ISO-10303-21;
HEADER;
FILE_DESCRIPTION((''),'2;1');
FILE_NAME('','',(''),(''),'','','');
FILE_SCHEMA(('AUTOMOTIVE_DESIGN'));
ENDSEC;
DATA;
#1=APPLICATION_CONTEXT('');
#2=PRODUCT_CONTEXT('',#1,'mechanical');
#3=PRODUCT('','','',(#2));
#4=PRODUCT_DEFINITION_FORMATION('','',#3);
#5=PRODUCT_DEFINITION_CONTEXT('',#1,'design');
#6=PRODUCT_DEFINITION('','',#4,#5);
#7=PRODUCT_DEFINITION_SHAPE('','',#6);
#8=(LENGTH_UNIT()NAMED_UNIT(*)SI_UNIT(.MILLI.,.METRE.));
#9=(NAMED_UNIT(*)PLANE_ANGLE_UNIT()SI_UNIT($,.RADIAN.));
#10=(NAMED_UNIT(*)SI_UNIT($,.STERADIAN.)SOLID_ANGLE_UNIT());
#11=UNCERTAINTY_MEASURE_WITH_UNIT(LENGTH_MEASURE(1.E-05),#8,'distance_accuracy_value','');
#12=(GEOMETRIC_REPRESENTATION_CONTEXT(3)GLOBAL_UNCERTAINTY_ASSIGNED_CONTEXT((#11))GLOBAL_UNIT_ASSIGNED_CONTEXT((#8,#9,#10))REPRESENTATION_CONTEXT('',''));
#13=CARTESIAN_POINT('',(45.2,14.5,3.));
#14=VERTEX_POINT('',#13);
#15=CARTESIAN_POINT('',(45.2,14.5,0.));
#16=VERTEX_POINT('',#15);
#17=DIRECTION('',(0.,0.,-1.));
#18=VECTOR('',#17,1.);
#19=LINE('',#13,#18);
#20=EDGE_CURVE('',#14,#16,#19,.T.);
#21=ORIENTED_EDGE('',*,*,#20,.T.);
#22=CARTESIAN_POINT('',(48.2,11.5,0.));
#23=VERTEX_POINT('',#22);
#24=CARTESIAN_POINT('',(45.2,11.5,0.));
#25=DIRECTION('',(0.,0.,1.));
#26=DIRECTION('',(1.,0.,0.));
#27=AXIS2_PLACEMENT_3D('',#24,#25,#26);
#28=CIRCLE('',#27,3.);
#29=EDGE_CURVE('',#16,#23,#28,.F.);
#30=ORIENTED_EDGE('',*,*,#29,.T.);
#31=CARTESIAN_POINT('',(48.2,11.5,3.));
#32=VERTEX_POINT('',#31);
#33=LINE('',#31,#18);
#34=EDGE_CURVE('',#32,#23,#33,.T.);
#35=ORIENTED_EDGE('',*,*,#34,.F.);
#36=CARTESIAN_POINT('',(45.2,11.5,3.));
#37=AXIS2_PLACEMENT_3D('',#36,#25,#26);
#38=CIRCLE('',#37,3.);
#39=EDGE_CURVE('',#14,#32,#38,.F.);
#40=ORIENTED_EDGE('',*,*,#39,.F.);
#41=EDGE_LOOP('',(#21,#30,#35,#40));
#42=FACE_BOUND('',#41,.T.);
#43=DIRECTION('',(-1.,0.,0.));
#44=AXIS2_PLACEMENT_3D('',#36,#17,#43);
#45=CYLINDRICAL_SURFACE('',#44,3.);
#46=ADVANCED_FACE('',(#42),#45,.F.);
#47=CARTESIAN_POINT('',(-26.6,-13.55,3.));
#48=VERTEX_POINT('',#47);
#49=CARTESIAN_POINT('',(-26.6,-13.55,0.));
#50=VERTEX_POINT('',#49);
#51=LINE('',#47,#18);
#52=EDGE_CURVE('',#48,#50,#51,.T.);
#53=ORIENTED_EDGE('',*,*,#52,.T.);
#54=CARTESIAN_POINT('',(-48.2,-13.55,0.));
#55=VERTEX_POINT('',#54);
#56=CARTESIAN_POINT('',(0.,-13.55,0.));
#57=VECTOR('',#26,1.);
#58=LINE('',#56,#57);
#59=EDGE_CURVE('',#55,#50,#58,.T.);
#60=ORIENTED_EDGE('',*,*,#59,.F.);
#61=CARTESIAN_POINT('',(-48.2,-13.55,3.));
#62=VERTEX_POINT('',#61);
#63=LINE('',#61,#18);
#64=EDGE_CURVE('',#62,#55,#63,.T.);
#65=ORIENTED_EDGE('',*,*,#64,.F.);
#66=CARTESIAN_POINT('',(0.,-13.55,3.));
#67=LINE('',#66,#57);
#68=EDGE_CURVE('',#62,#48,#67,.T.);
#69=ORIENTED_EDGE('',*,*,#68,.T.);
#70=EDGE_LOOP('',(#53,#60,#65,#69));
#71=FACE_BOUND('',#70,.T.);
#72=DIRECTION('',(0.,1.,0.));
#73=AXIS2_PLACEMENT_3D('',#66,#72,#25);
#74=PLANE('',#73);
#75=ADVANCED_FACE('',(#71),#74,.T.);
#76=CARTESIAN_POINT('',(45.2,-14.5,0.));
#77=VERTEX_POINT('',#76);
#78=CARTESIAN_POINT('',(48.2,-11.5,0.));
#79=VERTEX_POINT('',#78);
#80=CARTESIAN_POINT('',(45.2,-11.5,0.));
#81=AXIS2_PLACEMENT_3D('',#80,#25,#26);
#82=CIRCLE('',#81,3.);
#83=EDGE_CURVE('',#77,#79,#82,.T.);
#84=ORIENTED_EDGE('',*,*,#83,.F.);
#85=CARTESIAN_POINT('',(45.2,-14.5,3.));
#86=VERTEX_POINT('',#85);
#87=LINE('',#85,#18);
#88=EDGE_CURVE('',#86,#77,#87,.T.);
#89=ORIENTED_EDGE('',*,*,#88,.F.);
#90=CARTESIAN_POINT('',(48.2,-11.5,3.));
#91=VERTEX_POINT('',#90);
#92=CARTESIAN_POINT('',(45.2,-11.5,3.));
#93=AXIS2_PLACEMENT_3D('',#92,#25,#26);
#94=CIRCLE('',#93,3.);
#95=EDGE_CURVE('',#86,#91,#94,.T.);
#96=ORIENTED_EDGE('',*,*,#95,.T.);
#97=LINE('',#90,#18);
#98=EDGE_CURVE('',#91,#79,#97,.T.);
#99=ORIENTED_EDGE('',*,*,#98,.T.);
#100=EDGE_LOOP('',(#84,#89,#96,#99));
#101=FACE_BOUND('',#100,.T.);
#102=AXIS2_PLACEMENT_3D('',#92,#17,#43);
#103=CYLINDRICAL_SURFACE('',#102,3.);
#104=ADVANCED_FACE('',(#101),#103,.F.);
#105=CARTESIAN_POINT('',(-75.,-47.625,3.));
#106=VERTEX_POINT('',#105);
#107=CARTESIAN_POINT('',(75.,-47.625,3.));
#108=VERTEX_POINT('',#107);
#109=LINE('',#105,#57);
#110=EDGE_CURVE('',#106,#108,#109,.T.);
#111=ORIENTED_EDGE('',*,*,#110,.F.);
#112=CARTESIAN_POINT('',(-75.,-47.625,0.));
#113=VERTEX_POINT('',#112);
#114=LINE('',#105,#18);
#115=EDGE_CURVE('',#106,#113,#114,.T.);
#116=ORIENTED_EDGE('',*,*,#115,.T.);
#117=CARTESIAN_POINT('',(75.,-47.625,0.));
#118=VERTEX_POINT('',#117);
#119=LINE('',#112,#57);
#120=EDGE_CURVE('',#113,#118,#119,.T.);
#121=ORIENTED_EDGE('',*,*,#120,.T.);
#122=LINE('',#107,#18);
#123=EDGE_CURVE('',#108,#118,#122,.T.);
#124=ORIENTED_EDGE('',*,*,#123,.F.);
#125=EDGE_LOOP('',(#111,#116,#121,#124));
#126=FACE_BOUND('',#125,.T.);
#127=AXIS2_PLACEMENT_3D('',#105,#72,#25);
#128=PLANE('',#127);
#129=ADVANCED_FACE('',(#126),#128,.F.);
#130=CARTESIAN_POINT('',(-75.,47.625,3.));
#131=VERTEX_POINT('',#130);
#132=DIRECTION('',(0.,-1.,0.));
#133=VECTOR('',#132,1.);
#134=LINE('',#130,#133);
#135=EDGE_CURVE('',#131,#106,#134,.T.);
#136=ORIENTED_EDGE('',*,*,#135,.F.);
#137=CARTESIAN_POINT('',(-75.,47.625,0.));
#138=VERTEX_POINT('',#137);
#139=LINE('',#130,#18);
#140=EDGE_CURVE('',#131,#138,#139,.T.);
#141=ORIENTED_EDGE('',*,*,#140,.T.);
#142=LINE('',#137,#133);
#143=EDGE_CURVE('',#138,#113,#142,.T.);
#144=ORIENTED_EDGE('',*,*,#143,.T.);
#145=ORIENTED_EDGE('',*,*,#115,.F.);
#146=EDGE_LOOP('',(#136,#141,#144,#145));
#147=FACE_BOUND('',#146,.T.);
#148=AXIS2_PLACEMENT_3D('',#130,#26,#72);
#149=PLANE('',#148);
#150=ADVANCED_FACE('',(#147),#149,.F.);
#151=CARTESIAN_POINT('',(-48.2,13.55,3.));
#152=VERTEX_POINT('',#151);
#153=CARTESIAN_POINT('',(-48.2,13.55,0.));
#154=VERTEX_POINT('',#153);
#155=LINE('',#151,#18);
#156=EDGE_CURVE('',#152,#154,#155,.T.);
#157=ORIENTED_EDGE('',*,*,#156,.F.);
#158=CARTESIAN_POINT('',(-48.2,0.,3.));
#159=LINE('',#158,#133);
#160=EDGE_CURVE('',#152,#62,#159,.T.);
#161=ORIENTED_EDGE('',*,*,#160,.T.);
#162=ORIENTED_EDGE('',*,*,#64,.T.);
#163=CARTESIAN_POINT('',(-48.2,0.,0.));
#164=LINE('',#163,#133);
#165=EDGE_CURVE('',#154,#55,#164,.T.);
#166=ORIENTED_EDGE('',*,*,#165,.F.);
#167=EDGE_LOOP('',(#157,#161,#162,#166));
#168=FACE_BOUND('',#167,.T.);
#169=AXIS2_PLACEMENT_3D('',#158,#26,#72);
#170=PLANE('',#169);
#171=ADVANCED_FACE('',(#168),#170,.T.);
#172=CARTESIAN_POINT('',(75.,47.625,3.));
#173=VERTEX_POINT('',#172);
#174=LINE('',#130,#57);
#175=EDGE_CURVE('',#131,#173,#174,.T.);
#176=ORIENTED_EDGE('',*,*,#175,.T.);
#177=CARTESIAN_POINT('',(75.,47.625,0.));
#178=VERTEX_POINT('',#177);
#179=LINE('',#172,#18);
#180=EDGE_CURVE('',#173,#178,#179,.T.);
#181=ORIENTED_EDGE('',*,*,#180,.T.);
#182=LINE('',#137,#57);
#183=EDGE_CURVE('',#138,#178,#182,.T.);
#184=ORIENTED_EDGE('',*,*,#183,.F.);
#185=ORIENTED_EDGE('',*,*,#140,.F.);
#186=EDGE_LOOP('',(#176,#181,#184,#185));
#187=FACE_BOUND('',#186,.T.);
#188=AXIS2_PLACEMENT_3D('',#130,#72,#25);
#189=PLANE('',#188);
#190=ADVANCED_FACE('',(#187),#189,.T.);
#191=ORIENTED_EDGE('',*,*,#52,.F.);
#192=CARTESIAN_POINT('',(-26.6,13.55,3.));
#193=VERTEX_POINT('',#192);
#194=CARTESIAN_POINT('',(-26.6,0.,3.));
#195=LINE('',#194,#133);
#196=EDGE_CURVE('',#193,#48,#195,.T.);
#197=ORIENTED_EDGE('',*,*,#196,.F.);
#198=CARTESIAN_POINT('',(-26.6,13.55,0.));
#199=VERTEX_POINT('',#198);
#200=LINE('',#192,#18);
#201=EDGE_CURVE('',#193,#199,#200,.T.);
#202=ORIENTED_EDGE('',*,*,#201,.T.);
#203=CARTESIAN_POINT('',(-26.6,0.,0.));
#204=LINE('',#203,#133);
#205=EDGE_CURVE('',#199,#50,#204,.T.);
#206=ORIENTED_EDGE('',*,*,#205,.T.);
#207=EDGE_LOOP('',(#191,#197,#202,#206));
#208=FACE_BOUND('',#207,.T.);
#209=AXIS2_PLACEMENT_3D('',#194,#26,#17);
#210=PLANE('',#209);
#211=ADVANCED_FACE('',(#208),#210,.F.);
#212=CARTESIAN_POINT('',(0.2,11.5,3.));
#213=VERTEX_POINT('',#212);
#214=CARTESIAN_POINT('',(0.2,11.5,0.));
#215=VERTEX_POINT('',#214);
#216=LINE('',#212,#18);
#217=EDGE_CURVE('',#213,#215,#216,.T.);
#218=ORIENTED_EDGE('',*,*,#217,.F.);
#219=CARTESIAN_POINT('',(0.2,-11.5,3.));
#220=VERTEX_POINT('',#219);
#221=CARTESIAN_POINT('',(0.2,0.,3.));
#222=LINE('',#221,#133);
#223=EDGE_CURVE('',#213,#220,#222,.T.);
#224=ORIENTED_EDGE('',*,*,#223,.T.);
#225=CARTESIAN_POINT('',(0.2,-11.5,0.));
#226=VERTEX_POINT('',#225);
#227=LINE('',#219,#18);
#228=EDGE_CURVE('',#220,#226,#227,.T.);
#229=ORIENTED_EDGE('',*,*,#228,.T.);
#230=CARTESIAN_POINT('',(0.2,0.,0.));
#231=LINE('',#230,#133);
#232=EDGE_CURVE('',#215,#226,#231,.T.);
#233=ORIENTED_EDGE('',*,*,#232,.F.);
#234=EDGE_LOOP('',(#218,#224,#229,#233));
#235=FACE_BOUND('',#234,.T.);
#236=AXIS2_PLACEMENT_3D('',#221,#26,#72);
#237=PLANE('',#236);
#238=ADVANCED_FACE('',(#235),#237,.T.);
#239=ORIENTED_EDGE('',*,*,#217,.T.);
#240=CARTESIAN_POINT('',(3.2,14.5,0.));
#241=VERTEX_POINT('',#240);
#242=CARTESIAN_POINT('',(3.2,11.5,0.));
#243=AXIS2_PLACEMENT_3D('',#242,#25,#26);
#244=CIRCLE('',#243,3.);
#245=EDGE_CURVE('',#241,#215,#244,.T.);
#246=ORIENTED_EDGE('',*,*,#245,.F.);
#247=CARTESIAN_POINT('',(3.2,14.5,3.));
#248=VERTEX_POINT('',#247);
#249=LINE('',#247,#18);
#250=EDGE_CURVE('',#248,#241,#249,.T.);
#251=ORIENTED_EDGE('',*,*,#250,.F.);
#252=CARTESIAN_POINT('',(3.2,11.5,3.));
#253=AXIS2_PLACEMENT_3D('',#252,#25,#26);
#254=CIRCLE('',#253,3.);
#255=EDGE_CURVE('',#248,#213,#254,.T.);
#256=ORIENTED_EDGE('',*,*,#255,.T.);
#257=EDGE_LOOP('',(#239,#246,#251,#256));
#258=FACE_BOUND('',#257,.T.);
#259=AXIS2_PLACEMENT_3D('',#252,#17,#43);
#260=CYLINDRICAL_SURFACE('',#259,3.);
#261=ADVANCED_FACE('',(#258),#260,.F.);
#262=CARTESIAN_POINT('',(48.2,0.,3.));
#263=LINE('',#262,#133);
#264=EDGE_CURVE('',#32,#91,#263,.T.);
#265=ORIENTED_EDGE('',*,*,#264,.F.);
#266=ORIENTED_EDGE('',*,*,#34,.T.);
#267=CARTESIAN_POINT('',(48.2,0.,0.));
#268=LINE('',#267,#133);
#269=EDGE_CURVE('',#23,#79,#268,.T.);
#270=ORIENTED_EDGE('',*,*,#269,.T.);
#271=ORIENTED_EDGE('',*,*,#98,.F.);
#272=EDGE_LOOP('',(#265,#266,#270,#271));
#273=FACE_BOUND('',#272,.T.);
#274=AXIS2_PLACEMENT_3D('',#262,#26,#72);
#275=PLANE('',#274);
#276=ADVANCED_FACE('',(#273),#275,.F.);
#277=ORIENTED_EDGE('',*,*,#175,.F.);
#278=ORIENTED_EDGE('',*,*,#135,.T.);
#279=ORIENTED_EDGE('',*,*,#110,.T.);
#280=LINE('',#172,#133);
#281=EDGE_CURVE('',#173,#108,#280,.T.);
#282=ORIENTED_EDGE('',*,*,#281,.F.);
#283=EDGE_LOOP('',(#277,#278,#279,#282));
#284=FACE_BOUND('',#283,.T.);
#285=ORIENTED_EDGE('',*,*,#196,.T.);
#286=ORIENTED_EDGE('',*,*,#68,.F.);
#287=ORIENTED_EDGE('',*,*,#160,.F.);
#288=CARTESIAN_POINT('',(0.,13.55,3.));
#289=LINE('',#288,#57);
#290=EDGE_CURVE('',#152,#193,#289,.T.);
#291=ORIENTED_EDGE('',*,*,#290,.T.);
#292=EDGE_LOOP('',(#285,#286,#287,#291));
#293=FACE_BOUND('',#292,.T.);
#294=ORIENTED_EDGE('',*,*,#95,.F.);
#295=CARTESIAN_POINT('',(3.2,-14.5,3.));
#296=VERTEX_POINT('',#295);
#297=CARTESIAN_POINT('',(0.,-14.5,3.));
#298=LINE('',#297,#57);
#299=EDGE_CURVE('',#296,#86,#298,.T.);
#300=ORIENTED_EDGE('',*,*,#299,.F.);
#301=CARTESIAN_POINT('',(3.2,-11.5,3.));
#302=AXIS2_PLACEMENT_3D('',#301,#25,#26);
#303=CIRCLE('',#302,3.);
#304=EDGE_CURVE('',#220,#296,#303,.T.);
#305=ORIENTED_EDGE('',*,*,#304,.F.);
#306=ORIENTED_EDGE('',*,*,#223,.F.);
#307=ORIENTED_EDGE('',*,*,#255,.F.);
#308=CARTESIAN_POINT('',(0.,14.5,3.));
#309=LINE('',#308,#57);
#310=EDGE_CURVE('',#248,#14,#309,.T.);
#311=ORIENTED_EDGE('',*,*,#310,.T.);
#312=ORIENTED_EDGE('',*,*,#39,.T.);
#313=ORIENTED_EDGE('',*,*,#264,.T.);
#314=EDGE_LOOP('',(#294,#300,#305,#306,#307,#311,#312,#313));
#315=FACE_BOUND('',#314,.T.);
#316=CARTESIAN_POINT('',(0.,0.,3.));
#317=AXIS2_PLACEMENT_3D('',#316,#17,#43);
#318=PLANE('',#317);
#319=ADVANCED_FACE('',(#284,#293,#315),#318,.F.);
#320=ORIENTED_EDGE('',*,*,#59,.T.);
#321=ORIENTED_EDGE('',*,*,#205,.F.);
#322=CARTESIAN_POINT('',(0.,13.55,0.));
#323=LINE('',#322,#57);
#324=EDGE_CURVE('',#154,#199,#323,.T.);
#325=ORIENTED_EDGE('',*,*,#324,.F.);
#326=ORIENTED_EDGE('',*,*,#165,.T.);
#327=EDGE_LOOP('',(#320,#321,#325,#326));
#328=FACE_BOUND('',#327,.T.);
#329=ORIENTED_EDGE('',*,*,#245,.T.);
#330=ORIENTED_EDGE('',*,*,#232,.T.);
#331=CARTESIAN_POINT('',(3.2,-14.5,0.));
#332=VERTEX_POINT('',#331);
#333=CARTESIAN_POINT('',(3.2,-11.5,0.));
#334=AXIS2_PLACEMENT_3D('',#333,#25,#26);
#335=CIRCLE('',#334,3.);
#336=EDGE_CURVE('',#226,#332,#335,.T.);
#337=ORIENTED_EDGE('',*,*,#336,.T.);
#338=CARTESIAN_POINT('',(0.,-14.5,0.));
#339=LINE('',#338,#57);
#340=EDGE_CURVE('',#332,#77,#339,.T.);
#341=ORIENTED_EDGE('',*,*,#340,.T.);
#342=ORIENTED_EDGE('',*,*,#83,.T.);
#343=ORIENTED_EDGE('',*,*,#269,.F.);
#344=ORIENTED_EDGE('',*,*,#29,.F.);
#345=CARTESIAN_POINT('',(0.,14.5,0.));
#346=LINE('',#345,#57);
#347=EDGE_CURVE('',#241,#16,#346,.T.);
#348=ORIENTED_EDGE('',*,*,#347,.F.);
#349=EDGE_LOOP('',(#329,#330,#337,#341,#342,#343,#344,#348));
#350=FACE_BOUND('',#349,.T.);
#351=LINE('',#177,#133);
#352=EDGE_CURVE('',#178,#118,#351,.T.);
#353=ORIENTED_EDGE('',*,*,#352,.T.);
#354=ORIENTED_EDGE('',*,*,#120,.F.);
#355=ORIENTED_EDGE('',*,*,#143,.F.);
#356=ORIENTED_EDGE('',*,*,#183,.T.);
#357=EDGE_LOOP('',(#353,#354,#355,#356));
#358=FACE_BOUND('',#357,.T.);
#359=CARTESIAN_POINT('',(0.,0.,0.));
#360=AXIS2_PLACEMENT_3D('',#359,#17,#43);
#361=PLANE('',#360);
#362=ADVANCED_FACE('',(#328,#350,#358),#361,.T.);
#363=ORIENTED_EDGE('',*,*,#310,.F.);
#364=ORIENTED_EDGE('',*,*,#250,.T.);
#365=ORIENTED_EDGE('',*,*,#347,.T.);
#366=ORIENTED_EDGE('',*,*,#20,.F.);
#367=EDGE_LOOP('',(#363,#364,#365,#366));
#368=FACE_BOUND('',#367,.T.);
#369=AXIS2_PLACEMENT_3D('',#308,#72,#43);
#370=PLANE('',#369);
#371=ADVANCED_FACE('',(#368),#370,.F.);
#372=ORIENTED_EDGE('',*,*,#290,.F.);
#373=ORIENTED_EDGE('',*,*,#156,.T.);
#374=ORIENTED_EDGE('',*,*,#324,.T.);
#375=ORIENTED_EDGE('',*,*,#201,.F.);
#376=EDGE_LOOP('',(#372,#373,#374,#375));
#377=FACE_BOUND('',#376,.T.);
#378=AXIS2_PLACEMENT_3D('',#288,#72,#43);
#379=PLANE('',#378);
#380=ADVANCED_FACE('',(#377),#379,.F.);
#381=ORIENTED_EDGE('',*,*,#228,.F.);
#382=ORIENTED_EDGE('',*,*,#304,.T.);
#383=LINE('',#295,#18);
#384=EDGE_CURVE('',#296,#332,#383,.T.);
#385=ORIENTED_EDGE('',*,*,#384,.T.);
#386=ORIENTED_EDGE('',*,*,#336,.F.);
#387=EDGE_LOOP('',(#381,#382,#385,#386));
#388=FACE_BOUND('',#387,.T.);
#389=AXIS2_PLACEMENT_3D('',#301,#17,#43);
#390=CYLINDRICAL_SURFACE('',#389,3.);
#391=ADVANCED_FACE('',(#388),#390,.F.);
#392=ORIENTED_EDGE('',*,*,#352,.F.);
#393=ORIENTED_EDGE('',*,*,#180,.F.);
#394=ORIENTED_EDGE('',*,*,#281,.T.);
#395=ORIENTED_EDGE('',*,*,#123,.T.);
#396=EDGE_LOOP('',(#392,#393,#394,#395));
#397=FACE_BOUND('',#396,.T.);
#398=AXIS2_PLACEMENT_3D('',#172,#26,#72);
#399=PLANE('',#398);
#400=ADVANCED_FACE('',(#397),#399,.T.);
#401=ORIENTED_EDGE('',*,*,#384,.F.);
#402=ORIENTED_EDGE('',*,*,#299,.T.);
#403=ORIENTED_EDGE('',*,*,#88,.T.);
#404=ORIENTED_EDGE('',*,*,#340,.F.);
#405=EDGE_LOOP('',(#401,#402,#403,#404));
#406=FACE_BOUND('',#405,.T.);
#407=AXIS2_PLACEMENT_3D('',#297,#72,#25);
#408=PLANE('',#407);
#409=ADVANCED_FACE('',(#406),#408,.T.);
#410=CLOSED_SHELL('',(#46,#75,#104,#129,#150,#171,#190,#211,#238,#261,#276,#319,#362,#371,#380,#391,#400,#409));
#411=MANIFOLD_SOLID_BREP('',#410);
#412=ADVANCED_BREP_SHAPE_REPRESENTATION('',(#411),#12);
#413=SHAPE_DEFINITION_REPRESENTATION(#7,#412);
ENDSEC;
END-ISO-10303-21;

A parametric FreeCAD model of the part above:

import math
import FreeCAD as App
import Part
import Sketcher

V = App.Vector


def add_polygon(sketch, points):
    """Adds a closed chain of lines whose ends are joined by coincident constraints."""
    first, n = sketch.GeometryCount, len(points)
    for a, b in zip(points, points[1:] + points[:1]):
        sketch.addGeometry(Part.LineSegment(App.Vector(*a, 0), App.Vector(*b, 0)), False)
    for i in range(n):
        sketch.addConstraint(Sketcher.Constraint("Coincident", first + i, 2, first + (i + 1) % n, 1))

doc = App.newDocument("Part")
body = doc.addObject("PartDesign::Body", "Body")

sketch1 = doc.addObject("Sketcher::SketchObject", "Sketch")
body.addObject(sketch1)
sketch1.AttachmentSupport = (doc.XY_Plane, [""])
sketch1.MapMode = "FlatFace"
add_polygon(sketch1, [(-75, 48), (-75, -48), (75, -48), (75, 48)])
sketch1.addConstraint(Sketcher.Constraint("Vertical", 0))
sketch1.addConstraint(Sketcher.Constraint("Horizontal", 1))
sketch1.addConstraint(Sketcher.Constraint("Vertical", 2))
sketch1.addConstraint(Sketcher.Constraint("Horizontal", 3))
sketch1.addConstraint(Sketcher.Constraint("Symmetric", 0, 2, 2, 2, -1, 1))
sketch1.addConstraint(Sketcher.Constraint("DistanceX", 1, 1, 1, 2, 150.0))
sketch1.addConstraint(Sketcher.Constraint("DistanceY", 0, 2, 0, 1, 95.25))
pad1 = doc.addObject("PartDesign::Pad", "Pad")
body.addObject(pad1)
pad1.Profile = sketch1
pad1.Length = 3

sketch2 = doc.addObject("Sketcher::SketchObject", "Sketch001")
body.addObject(sketch2)
sketch2.AttachmentSupport = (doc.XY_Plane, [""])
sketch2.MapMode = "FlatFace"
add_polygon(sketch2, [(-48.2, 13.6), (-48.2, -13.6), (-26.6, -13.6), (-26.6, 13.6)])
sketch2.addGeometry(Part.LineSegment(V(45.2, 14.5, 0), V(3.2, 14.5, 0)), False)
sketch2.addGeometry(Part.ArcOfCircle(Part.Circle(V(3.2, 11.5, 0), V(0, 0, 1), 3), math.radians(90), math.radians(180)), False)
sketch2.addGeometry(Part.LineSegment(V(0.2, 11.5, 0), V(0.2, -11.5, 0)), False)
sketch2.addGeometry(Part.ArcOfCircle(Part.Circle(V(3.2, -11.5, 0), V(0, 0, 1), 3), math.radians(180), math.radians(270)), False)
sketch2.addGeometry(Part.LineSegment(V(3.2, -14.5, 0), V(45.2, -14.5, 0)), False)
sketch2.addGeometry(Part.ArcOfCircle(Part.Circle(V(45.2, -11.5, 0), V(0, 0, 1), 3), math.radians(-90), math.radians(0)), False)
sketch2.addGeometry(Part.LineSegment(V(48.2, -11.5, 0), V(48.2, 11.5, 0)), False)
sketch2.addGeometry(Part.ArcOfCircle(Part.Circle(V(45.2, 11.5, 0), V(0, 0, 1), 3), math.radians(0), math.radians(90)), False)
sketch2.addConstraint(Sketcher.Constraint("Tangent", 4, 2, 5, 1))
sketch2.addConstraint(Sketcher.Constraint("Tangent", 5, 2, 6, 1))
sketch2.addConstraint(Sketcher.Constraint("Tangent", 6, 2, 7, 1))
sketch2.addConstraint(Sketcher.Constraint("Tangent", 7, 2, 8, 1))
sketch2.addConstraint(Sketcher.Constraint("Tangent", 8, 2, 9, 1))
sketch2.addConstraint(Sketcher.Constraint("Tangent", 9, 2, 10, 1))
sketch2.addConstraint(Sketcher.Constraint("Tangent", 10, 2, 11, 1))
sketch2.addConstraint(Sketcher.Constraint("Tangent", 11, 2, 4, 1))
sketch2.addConstraint(Sketcher.Constraint("Vertical", 0))
sketch2.addConstraint(Sketcher.Constraint("Horizontal", 1))
sketch2.addConstraint(Sketcher.Constraint("Vertical", 2))
sketch2.addConstraint(Sketcher.Constraint("Horizontal", 3))
sketch2.addConstraint(Sketcher.Constraint("Horizontal", 4))
sketch2.addConstraint(Sketcher.Constraint("Vertical", 6))
sketch2.addConstraint(Sketcher.Constraint("Horizontal", 8))
sketch2.addConstraint(Sketcher.Constraint("Vertical", 10))
sketch2.addConstraint(Sketcher.Constraint("Equal", 5, 7))
sketch2.addConstraint(Sketcher.Constraint("Equal", 7, 9))
sketch2.addConstraint(Sketcher.Constraint("Equal", 9, 11))
sketch2.addConstraint(Sketcher.Constraint("Radius", 5, 3.0))
sketch2.addConstraint(Sketcher.Constraint("DistanceX", 4, 2, 4, 1, 42.0))
sketch2.addConstraint(Sketcher.Constraint("DistanceY", 6, 2, 6, 1, 23.0))
sketch2.addConstraint(Sketcher.Constraint("DistanceX", 1, 1, 1, 2, 21.6))
sketch2.addConstraint(Sketcher.Constraint("DistanceY", 0, 2, 0, 1, 27.1))
sketch2.addConstraint(Sketcher.Constraint("DistanceX", -1, 1, 5, 3, 3.2))
sketch2.addConstraint(Sketcher.Constraint("DistanceY", -1, 1, 5, 3, 11.5))
sketch2.addConstraint(Sketcher.Constraint("DistanceX", 0, 2, -1, 1, 48.2))
sketch2.addConstraint(Sketcher.Constraint("DistanceY", 0, 2, -1, 1, 13.55))
pocket1 = doc.addObject("PartDesign::Pocket", "Pocket")
body.addObject(pocket1)
pocket1.Profile = sketch2
pocket1.Length = 3
pocket1.Reversed = True

doc.recompute()
